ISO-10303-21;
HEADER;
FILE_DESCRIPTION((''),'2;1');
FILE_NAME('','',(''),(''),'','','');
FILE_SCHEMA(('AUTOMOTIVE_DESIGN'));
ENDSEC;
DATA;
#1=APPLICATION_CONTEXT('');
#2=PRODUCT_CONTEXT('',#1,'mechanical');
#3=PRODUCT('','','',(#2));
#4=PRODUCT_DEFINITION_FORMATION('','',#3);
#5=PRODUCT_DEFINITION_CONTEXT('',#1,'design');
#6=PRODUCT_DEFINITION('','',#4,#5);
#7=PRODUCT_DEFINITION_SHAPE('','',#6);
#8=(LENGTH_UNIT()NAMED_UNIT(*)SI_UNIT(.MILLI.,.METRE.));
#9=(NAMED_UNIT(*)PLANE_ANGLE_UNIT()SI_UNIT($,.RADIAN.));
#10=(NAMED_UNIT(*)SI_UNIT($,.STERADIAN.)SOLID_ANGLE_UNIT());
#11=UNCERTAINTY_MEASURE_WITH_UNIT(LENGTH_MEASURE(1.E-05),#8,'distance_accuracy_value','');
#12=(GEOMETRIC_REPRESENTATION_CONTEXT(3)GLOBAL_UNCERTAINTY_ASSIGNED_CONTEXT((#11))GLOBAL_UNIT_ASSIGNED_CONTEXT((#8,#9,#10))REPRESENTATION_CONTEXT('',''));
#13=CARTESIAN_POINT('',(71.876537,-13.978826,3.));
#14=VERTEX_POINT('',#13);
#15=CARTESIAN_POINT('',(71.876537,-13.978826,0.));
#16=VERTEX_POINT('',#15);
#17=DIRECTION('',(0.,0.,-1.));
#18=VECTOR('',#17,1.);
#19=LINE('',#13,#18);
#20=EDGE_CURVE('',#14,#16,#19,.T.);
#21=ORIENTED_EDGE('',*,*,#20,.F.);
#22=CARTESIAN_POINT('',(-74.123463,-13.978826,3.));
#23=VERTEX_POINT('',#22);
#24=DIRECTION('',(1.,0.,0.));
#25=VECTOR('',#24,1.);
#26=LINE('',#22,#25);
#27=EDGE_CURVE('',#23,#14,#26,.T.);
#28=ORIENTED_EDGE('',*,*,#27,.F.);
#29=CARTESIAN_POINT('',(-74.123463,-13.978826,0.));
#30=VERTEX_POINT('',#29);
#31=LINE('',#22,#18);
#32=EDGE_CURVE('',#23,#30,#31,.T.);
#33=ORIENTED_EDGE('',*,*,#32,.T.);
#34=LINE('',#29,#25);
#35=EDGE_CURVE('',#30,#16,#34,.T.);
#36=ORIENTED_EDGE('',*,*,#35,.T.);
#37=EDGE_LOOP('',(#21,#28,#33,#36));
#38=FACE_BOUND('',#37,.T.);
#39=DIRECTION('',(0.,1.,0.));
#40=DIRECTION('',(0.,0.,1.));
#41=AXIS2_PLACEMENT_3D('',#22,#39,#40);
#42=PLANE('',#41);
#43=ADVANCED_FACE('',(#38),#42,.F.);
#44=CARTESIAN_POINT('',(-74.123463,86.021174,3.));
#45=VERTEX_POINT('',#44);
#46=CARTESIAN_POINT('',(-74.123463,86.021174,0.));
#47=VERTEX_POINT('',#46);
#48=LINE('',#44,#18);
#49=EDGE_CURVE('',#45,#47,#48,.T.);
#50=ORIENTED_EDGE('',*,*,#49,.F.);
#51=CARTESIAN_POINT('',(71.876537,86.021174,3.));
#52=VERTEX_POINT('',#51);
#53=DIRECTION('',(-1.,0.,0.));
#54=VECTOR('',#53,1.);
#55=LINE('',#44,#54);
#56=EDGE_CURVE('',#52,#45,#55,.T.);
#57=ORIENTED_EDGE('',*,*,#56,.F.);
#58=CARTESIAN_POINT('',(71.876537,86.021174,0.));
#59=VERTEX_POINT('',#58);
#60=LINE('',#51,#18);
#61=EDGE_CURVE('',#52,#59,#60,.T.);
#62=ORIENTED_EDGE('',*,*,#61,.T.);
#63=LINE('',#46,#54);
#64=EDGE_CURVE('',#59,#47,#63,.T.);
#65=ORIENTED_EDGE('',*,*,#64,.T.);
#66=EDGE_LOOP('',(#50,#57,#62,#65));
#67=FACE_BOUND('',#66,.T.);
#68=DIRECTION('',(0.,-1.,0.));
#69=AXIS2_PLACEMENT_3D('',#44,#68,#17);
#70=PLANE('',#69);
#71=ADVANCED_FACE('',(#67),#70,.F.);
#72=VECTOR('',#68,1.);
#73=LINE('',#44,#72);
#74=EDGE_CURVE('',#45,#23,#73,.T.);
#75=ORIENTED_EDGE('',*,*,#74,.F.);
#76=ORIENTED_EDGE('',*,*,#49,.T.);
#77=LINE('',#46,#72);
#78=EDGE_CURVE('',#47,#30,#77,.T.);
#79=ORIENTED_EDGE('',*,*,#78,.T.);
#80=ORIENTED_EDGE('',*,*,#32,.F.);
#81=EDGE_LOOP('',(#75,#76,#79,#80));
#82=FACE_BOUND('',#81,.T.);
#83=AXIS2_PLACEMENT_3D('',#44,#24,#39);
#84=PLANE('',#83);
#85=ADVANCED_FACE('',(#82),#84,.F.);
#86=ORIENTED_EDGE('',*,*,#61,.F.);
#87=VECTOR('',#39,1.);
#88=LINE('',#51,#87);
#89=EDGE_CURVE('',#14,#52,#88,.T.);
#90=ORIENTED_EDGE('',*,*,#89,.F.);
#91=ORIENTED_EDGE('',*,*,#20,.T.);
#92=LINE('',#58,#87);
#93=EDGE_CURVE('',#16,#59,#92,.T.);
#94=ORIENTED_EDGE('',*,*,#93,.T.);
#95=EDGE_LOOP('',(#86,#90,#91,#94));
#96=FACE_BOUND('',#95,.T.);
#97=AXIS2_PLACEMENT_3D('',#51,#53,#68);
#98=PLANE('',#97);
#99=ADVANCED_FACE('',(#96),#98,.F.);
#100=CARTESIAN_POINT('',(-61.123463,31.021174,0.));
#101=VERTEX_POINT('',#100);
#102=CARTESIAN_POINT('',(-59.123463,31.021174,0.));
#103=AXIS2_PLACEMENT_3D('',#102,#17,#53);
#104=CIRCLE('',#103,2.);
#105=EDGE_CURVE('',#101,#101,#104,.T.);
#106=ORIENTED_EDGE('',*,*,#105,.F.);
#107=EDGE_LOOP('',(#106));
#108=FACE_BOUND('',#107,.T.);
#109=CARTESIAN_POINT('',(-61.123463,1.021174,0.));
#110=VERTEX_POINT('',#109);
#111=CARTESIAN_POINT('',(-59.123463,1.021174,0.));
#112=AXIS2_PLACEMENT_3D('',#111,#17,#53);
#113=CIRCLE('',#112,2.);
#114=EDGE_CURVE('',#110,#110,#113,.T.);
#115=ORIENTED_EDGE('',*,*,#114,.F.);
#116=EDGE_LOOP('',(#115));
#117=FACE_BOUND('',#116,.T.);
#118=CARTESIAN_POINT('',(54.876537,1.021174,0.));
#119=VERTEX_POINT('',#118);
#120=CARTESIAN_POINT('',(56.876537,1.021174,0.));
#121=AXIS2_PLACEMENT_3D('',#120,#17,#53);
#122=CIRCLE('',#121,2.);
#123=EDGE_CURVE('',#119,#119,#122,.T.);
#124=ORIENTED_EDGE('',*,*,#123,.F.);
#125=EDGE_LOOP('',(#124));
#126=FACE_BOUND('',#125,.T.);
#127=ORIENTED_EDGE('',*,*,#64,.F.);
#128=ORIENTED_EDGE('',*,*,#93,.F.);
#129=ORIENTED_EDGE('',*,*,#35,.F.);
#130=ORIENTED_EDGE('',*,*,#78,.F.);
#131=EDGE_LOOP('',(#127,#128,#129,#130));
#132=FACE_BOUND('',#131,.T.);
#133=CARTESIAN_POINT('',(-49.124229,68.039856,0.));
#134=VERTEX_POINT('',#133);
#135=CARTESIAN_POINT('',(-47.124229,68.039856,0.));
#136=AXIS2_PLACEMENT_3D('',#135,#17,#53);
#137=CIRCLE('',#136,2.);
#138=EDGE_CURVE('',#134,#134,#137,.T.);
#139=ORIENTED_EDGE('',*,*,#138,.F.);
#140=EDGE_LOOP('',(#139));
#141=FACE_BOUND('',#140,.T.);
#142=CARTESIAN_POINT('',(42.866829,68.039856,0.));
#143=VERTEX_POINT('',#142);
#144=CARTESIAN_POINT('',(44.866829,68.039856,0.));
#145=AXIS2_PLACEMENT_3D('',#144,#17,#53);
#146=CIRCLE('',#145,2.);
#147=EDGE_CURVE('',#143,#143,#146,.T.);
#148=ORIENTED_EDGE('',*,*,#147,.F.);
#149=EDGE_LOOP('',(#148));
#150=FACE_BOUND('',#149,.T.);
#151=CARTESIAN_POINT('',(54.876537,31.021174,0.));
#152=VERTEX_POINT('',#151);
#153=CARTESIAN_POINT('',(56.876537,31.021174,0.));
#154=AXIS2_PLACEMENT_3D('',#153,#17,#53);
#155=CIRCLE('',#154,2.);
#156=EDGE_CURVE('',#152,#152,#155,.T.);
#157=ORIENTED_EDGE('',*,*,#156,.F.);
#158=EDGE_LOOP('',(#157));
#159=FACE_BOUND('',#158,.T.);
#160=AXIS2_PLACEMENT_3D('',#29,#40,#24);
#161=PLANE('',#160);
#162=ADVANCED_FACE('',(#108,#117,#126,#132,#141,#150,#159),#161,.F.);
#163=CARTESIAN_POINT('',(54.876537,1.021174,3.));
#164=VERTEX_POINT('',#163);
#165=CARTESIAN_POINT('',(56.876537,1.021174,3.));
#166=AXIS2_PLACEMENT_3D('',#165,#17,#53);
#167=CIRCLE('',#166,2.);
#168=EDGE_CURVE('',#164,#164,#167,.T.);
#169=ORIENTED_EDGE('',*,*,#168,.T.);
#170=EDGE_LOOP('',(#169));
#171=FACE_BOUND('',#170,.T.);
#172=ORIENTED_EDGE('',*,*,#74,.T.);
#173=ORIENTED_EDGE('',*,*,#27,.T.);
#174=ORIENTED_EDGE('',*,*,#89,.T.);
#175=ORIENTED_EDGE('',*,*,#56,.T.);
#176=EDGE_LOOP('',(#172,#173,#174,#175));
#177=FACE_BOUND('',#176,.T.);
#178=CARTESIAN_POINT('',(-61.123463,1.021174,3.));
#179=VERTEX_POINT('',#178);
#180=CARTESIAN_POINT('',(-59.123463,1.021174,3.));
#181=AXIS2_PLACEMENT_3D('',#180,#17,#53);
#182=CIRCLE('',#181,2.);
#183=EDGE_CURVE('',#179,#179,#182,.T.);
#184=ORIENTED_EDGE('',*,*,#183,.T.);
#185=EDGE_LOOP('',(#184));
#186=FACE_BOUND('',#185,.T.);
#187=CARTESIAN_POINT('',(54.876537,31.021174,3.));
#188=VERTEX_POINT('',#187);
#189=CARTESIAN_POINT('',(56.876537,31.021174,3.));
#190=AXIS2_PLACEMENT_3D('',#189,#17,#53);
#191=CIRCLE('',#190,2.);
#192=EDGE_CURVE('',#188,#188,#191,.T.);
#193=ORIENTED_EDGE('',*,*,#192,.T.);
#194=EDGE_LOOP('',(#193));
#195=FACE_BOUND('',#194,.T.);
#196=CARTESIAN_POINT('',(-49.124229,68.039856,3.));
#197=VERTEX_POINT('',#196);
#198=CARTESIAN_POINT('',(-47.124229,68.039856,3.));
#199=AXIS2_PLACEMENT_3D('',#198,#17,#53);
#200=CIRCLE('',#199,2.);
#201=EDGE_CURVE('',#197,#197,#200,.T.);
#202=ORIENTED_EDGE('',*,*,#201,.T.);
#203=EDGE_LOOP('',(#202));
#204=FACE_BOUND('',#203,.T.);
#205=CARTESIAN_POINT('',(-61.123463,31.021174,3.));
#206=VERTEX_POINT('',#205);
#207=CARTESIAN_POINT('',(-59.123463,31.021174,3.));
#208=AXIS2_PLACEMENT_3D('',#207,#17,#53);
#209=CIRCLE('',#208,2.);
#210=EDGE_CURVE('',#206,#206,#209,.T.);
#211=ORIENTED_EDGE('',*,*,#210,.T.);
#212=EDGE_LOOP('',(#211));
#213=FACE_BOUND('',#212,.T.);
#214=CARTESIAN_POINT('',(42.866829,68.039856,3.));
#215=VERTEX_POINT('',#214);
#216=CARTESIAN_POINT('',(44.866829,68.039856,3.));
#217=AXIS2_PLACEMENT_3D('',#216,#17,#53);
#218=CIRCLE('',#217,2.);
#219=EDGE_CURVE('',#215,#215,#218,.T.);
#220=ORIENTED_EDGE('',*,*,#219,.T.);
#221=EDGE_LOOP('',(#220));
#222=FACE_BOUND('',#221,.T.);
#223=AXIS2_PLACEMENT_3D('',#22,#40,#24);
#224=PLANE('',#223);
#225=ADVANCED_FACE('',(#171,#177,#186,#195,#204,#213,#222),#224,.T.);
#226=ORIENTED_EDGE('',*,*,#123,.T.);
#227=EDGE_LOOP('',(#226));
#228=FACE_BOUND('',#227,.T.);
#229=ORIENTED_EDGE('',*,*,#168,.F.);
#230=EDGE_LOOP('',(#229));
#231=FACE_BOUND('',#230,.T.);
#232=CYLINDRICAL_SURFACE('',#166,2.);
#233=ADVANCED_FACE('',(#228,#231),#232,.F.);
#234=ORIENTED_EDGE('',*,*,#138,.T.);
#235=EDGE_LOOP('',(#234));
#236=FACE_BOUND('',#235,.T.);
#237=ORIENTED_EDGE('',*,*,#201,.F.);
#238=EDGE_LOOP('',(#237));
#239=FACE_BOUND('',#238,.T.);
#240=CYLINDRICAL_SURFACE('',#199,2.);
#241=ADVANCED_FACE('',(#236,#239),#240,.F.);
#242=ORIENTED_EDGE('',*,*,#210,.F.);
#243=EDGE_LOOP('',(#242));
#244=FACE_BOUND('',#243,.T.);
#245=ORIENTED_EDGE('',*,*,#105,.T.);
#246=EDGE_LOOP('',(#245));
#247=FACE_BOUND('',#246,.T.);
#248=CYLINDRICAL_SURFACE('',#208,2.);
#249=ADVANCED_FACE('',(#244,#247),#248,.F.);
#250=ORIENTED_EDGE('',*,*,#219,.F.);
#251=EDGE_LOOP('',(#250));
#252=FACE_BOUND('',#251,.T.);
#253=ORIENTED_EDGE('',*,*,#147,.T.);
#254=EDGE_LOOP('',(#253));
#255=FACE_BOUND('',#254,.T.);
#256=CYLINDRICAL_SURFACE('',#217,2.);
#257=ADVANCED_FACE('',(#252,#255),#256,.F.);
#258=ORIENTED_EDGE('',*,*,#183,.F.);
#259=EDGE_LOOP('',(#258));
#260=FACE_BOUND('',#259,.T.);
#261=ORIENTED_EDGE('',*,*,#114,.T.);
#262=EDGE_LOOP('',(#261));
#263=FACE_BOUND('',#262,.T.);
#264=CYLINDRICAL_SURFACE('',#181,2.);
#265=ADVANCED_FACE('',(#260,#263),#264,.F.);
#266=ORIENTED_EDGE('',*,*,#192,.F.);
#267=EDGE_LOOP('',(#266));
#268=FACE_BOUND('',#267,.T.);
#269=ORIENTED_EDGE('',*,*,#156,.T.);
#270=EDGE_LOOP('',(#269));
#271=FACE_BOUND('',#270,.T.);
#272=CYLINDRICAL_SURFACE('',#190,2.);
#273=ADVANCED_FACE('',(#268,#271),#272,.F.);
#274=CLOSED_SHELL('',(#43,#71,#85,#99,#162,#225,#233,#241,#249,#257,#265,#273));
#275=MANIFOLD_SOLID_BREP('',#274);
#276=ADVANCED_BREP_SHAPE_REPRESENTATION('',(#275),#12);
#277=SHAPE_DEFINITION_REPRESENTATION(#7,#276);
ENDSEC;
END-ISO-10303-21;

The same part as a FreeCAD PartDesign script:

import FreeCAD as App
import Part
import Sketcher
from FreeCAD import Vector

doc = App.newDocument("Part")
body = doc.addObject("PartDesign::Body", "Body")

# Sketch on XY plane
sketch1 = doc.addObject("Sketcher::SketchObject", "Sketch")
body.addObject(sketch1)
sketch1.AttachmentSupport = (doc.XY_Plane, [""])
sketch1.MapMode = "FlatFace"
sketch1.addGeometry(Part.LineSegment(Vector(-74, 86, 0), Vector(-74, -14, 0)), False)
sketch1.addGeometry(Part.LineSegment(Vector(-74, -14, 0), Vector(72, -14, 0)), False)
sketch1.addGeometry(Part.LineSegment(Vector(72, -14, 0), Vector(72, 86, 0)), False)
sketch1.addGeometry(Part.LineSegment(Vector(72, 86, 0), Vector(-74, 86, 0)), False)
sketch1.addConstraint(Sketcher.Constraint("Coincident", 0, 2, 1, 1))
sketch1.addConstraint(Sketcher.Constraint("Coincident", 1, 2, 2, 1))
sketch1.addConstraint(Sketcher.Constraint("Coincident", 2, 2, 3, 1))
sketch1.addConstraint(Sketcher.Constraint("Coincident", 3, 2, 0, 1))
sketch1.addConstraint(Sketcher.Constraint("Vertical", 0))
sketch1.addConstraint(Sketcher.Constraint("Horizontal", 1))
sketch1.addConstraint(Sketcher.Constraint("Vertical", 2))
sketch1.addConstraint(Sketcher.Constraint("Horizontal", 3))
sketch1.addConstraint(Sketcher.Constraint("DistanceX", 1, 1, 1, 2, 146.0))
sketch1.addConstraint(Sketcher.Constraint("DistanceY", 0, 2, 0, 1, 100.0))
sketch1.addConstraint(Sketcher.Constraint("DistanceX", 0, 2, -1, 1, 74.123463))
sketch1.addConstraint(Sketcher.Constraint("DistanceY", 0, 2, -1, 1, 13.978826))
pad1 = doc.addObject("PartDesign::Pad", "Pad")
body.addObject(pad1)
pad1.Profile = sketch1
pad1.Length = 3

# Sketch on XY plane
sketch2 = doc.addObject("Sketcher::SketchObject", "Sketch001")
body.addObject(sketch2)
sketch2.AttachmentSupport = (doc.XY_Plane, [""])
sketch2.MapMode = "FlatFace"
sketch2.addGeometry(Part.Circle(Vector(-59.1, 1, 0), Vector(0, 0, 1), 2), False)
sketch2.addGeometry(Part.Circle(Vector(56.9, 1, 0), Vector(0, 0, 1), 2), False)
sketch2.addConstraint(Sketcher.Constraint("Equal", 0, 1))
sketch2.addConstraint(Sketcher.Constraint("Horizontal", 0, 3, 1, 3))
sketch2.addConstraint(Sketcher.Constraint("Diameter", 0, 4.0))
sketch2.addConstraint(Sketcher.Constraint("DistanceX", 0, 3, 1, 3, 116.0))
sketch2.addConstraint(Sketcher.Constraint("DistanceX", 0, 3, -1, 1, 59.123463))
sketch2.addConstraint(Sketcher.Constraint("DistanceY", -1, 1, 0, 3, 1.021174))
pocket1 = doc.addObject("PartDesign::Pocket", "Pocket")
body.addObject(pocket1)
pocket1.Profile = sketch2
pocket1.Type = "ThroughAll"
pocket1.Reversed = True

# Sketch on XY plane
sketch3 = doc.addObject("Sketcher::SketchObject", "Sketch002")
body.addObject(sketch3)
sketch3.AttachmentSupport = (doc.XY_Plane, [""])
sketch3.MapMode = "FlatFace"
sketch3.addGeometry(Part.Circle(Vector(56.9, 31, 0), Vector(0, 0, 1), 2), False)
sketch3.addGeometry(Part.Circle(Vector(-59.1, 31, 0), Vector(0, 0, 1), 2), False)
sketch3.addConstraint(Sketcher.Constraint("Equal", 0, 1))
sketch3.addConstraint(Sketcher.Constraint("Horizontal", 0, 3, 1, 3))
sketch3.addConstraint(Sketcher.Constraint("Diameter", 0, 4.0))
sketch3.addConstraint(Sketcher.Constraint("DistanceX", 1, 3, 0, 3, 116.0))
sketch3.addConstraint(Sketcher.Constraint("DistanceX", -1, 1, 0, 3, 56.876537))
sketch3.addConstraint(Sketcher.Constraint("DistanceY", -1, 1, 0, 3, 31.021174))
pocket2 = doc.addObject("PartDesign::Pocket", "Pocket001")
body.addObject(pocket2)
pocket2.Profile = sketch3
pocket2.Type = "ThroughAll"
pocket2.Reversed = True

# Sketch on XY plane
sketch4 = doc.addObject("Sketcher::SketchObject", "Sketch003")
body.addObject(sketch4)
sketch4.AttachmentSupport = (doc.XY_Plane, [""])
sketch4.MapMode = "FlatFace"
sketch4.addGeometry(Part.Circle(Vector(44.9, 68, 0), Vector(0, 0, 1), 2), False)
sketch4.addGeometry(Part.Circle(Vector(-47.1, 68, 0), Vector(0, 0, 1), 2), False)
sketch4.addConstraint(Sketcher.Constraint("Equal", 0, 1))
sketch4.addConstraint(Sketcher.Constraint("Horizontal", 0, 3, 1, 3))
sketch4.addConstraint(Sketcher.Constraint("Diameter", 0, 4.0))
sketch4.addConstraint(Sketcher.Constraint("DistanceX", -1, 1, 0, 3, 44.866829))
sketch4.addConstraint(Sketcher.Constraint("DistanceX", 1, 3, -1, 1, 47.124229))
sketch4.addConstraint(Sketcher.Constraint("DistanceY", -1, 1, 0, 3, 68.039856))
pocket3 = doc.addObject("PartDesign::Pocket", "Pocket002")
body.addObject(pocket3)
pocket3.Profile = sketch4
pocket3.Type = "ThroughAll"
pocket3.Reversed = True

doc.recompute()
